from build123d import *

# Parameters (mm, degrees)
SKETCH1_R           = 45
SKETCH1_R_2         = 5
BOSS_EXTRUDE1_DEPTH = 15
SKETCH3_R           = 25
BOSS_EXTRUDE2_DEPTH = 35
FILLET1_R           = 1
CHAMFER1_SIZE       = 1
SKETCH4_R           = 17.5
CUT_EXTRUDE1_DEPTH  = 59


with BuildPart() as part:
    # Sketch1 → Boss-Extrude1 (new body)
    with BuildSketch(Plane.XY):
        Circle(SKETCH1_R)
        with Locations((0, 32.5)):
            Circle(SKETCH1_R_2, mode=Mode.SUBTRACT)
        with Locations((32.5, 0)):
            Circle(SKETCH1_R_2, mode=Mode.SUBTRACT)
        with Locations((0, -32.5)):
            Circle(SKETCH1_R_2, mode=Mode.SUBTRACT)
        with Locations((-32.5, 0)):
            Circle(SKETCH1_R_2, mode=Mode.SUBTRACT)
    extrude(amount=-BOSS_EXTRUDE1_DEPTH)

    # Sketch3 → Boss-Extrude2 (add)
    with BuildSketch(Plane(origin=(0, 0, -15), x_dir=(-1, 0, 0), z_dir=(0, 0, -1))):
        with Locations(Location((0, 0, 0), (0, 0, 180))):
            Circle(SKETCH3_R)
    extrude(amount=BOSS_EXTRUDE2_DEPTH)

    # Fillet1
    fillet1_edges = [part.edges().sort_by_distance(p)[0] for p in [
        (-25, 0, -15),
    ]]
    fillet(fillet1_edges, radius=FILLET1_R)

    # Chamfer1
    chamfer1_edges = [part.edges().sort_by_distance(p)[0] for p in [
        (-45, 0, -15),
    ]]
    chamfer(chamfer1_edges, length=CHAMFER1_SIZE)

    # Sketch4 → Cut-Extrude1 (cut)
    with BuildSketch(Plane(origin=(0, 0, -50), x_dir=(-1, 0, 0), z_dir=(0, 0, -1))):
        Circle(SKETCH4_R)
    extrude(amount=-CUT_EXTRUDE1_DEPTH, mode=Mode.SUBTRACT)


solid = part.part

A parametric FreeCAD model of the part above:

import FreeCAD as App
import Part
import Sketcher


def edges_at(feature, points):
    """Names of the edges that pass closest to the given points."""
    edges = feature.Shape.Edges
    near = lambda p: min(range(len(edges)), key=lambda i: edges[i].distToShape(Part.Vertex(*p))[0])
    return sorted({f"Edge{near(p) + 1}" for p in points})

doc = App.newDocument("Part")
body = doc.addObject("PartDesign::Body", "Body")

sketch1 = body.newObject("Sketcher::SketchObject", "Sketch")
sketch1.AttachmentSupport = (doc.getObject("XY_Plane"), [""])
sketch1.MapMode = "FlatFace"
sketch1.addGeometry(Part.Circle(App.Vector(0, 0, 0), App.Vector(0, 0, 1), 45), False)
sketch1.addGeometry(Part.Circle(App.Vector(0, -32, 0), App.Vector(0, 0, 1), 5), False)
sketch1.addGeometry(Part.Circle(App.Vector(-32, 0, 0), App.Vector(0, 0, 1), 5), False)
sketch1.addGeometry(Part.Circle(App.Vector(32, 0, 0), App.Vector(0, 0, 1), 5), False)
sketch1.addGeometry(Part.Circle(App.Vector(0, 32, 0), App.Vector(0, 0, 1), 5), False)
sketch1.addConstraint(Sketcher.Constraint("Coincident", 0, 3, -1, 1))
sketch1.addConstraint(Sketcher.Constraint("Equal", 1, 2))
sketch1.addConstraint(Sketcher.Constraint("Equal", 2, 3))
sketch1.addConstraint(Sketcher.Constraint("Equal", 3, 4))
sketch1.addConstraint(Sketcher.Constraint("Symmetric", 2, 3, 3, 3, -1, 1))
sketch1.addConstraint(Sketcher.Constraint("Symmetric", 1, 3, 4, 3, -1, 1))
sketch1.addConstraint(Sketcher.Constraint("PointOnObject", 1, 3, -2))
sketch1.addConstraint(Sketcher.Constraint("PointOnObject", 2, 3, -1))
sketch1.addConstraint(Sketcher.Constraint("Diameter", 0, 90.0))
sketch1.addConstraint(Sketcher.Constraint("Diameter", 1, 10.0))
sketch1.addConstraint(Sketcher.Constraint("DistanceX", 2, 3, 3, 3, 65.0))
sketch1.addConstraint(Sketcher.Constraint("DistanceY", 1, 3, 4, 3, 65.0))
pad1 = body.newObject("PartDesign::Pad", "Pad")
pad1.Profile = sketch1
pad1.Length = 15
pad1.Reversed = True

sketch2 = body.newObject("Sketcher::SketchObject", "Sketch001")
sketch2.AttachmentSupport = (doc.getObject("XY_Plane"), [""])
sketch2.MapMode = "FlatFace"
sketch2.AttachmentOffset = App.Placement(App.Vector(0, 0, -15), App.Rotation())
sketch2.addGeometry(Part.Circle(App.Vector(0, 0, 0), App.Vector(0, 0, 1), 25), False)
sketch2.addConstraint(Sketcher.Constraint("Coincident", 0, 3, -1, 1))
sketch2.addConstraint(Sketcher.Constraint("Diameter", 0, 50.0))
pad2 = body.newObject("PartDesign::Pad", "Pad001")
pad2.Profile = sketch2
pad2.Length = 35
pad2.Reversed = True
doc.recompute()

fillet = body.newObject("PartDesign::Fillet", "Fillet")
fillet.Base = (pad2, edges_at(pad2, [(-25, 0, -15)]))
fillet.Radius = 1
doc.recompute()

chamfer = body.newObject("PartDesign::Chamfer", "Chamfer")
chamfer.Base = (fillet, edges_at(fillet, [(-45, 0, -15)]))
chamfer.Size = 1

sketch3 = body.newObject("Sketcher::SketchObject", "Sketch002")
sketch3.AttachmentSupport = (doc.getObject("XY_Plane"), [""])
sketch3.MapMode = "FlatFace"
sketch3.AttachmentOffset = App.Placement(App.Vector(0, 0, -50), App.Rotation())
sketch3.addGeometry(Part.Circle(App.Vector(0, 0, 0), App.Vector(0, 0, 1), 18), False)
sketch3.addConstraint(Sketcher.Constraint("Coincident", 0, 3, -1, 1))
sketch3.addConstraint(Sketcher.Constraint("Diameter", 0, 35.0))
pocket1 = body.newObject("PartDesign::Pocket", "Pocket")
pocket1.Profile = sketch3
pocket1.Length = 59
pocket1.Reversed = True

doc.recompute()
